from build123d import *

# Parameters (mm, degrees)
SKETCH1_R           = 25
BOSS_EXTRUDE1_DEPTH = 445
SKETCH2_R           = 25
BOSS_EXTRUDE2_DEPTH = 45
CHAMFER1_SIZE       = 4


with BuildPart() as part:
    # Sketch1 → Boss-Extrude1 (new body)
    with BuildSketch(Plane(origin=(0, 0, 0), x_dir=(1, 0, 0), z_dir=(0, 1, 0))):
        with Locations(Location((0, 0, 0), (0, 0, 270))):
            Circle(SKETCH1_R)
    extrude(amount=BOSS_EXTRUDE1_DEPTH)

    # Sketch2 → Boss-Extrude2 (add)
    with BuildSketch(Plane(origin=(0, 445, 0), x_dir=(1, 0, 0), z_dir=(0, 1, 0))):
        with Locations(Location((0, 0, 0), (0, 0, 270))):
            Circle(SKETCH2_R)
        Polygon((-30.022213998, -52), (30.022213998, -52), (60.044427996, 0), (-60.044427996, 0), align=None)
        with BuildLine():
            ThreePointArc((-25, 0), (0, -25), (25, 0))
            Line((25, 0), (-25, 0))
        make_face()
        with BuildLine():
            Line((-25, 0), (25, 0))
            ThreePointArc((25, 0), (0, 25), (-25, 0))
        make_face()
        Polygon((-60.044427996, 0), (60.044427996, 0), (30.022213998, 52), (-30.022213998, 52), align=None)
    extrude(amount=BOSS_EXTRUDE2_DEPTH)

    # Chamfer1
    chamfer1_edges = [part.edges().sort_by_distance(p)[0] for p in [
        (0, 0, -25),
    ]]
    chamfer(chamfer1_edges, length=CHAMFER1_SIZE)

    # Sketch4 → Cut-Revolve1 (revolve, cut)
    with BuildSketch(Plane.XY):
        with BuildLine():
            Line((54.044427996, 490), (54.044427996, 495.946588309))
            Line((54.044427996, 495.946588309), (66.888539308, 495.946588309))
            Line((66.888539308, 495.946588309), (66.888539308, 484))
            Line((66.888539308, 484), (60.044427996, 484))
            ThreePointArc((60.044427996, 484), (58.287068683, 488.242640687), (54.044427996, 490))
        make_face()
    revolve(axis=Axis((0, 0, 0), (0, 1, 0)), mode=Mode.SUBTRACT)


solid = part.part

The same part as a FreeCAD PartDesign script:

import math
import FreeCAD as App
import Part
import Sketcher
Q = App.Units.Quantity


def edges_at(feature, points):
    """Names of the edges that pass closest to the given points."""
    edges = feature.Shape.Edges
    near = lambda p: min(range(len(edges)), key=lambda i: edges[i].distToShape(Part.Vertex(*p))[0])
    return sorted({f"Edge{near(p) + 1}" for p in points})


def add_polygon(sketch, points):
    """Adds a closed chain of lines whose ends are joined by coincident constraints."""
    first, n = sketch.GeometryCount, len(points)
    for a, b in zip(points, points[1:] + points[:1]):
        sketch.addGeometry(Part.LineSegment(App.Vector(*a, 0), App.Vector(*b, 0)), False)
    for i in range(n):
        sketch.addConstraint(Sketcher.Constraint("Coincident", first + i, 2, first + (i + 1) % n, 1))

doc = App.newDocument("Part")
params = doc.addObject("Spreadsheet::Sheet", "Params")
for row, (alias, value) in enumerate([
    ("sketch1_diameter", "50 mm"),
    ("pad1_length", "445 mm"),
    ("pad2_length", "45 mm"),
    ("chamfer_size", "4 mm"),
    ("sketch3_radius", "6 mm"),
    ("groove_angle", "360 deg"),
], start=1):
    params.set(f"A{row}", alias)
    params.set(f"B{row}", "=" + value)
    params.setAlias(f"B{row}", alias)

body = doc.addObject("PartDesign::Body", "Body")

# Sketch on XZ plane
sketch1 = doc.addObject("Sketcher::SketchObject", "Sketch")
body.addObject(sketch1)
sketch1.AttachmentSupport = (doc.XZ_Plane, [""])
sketch1.MapMode = "FlatFace"
sketch1.addGeometry(Part.Circle(App.Vector(0, 0, 0), App.Vector(0, 0, 1), 25), False)
sketch1.addConstraint([
    Sketcher.Constraint("Coincident", 0, 3, -1, 1),
    Sketcher.Constraint("Diameter", 0, Q("50 mm")),
])
sketch1.setExpression("Constraints[1]", "Params.sketch1_diameter")
pad1 = doc.addObject("PartDesign::Pad", "Pad")
body.addObject(pad1)
pad1.Profile = sketch1
pad1.setExpression("Length", "Params.pad1_length")
pad1.Reversed = True

# Sketch on XZ plane
sketch2 = doc.addObject("Sketcher::SketchObject", "Sketch001")
body.addObject(sketch2)
sketch2.AttachmentSupport = (doc.XZ_Plane, [""])
sketch2.MapMode = "FlatFace"
sketch2.AttachmentOffset = App.Placement(App.Vector(0, 0, -445), App.Rotation())
add_polygon(sketch2, [(-30, 52), (30, 52), (60, 0), (30, -52), (-30, -52), (-60, 0)])  # lines 0-5
sketch2.addConstraint([
    Sketcher.Constraint("Horizontal", 0),
    Sketcher.Constraint("Horizontal", 3),
    Sketcher.Constraint("Symmetric", 0, 2, 3, 2, -1, 1),
    Sketcher.Constraint("Symmetric", 1, 2, 4, 2, -1, 1),
    Sketcher.Constraint("PointOnObject", 1, 2, -1),
    Sketcher.Constraint("Parallel", 2, 5),
    Sketcher.Constraint("Vertical", 0, 2, 2, 2),
    Sketcher.Constraint("Angle", 1, Q("-60 deg")),
    Sketcher.Constraint("DistanceY", -1, 1, 0, 2, Q("52 mm")),
    Sketcher.Constraint("DistanceX", 0, 1, 0, 2, Q("60.044428 mm")),
])
pad2 = doc.addObject("PartDesign::Pad", "Pad001")
body.addObject(pad2)
pad2.Profile = sketch2
pad2.setExpression("Length", "Params.pad2_length")
pad2.Reversed = True
doc.recompute()

chamfer = doc.addObject("PartDesign::Chamfer", "Chamfer")
body.addObject(chamfer)
chamfer.Base = (pad2, edges_at(pad2, [(0, 0, -25)]))
chamfer.setExpression("Size", "Params.chamfer_size")

# Sketch on XY plane
sketch3 = doc.addObject("Sketcher::SketchObject", "Sketch002")
body.addObject(sketch3)
sketch3.AttachmentSupport = (doc.XY_Plane, [""])
sketch3.MapMode = "FlatFace"
sketch3.addGeometry([
    Part.LineSegment(App.Vector(54, 496, 0), App.Vector(54, 490, 0)),  # 0
    Part.ArcOfCircle(Part.Circle(App.Vector(54, 484, 0), App.Vector(0, 0, 1), 6), math.radians(0), math.radians(90)),  # 1
    Part.LineSegment(App.Vector(60, 484, 0), App.Vector(67, 484, 0)),  # 2
    Part.LineSegment(App.Vector(67, 484, 0), App.Vector(67, 496, 0)),  # 3
    Part.LineSegment(App.Vector(67, 496, 0), App.Vector(54, 496, 0)),  # 4
], False)
sketch3.addConstraint([
    Sketcher.Constraint("Coincident", 0, 2, 1, 2),
    Sketcher.Constraint("Coincident", 1, 1, 2, 1),
    Sketcher.Constraint("Coincident", 2, 2, 3, 1),
    Sketcher.Constraint("Coincident", 3, 2, 4, 1),
    Sketcher.Constraint("Coincident", 4, 2, 0, 1),
    Sketcher.Constraint("Vertical", 0),
    Sketcher.Constraint("Horizontal", 2),
    Sketcher.Constraint("Vertical", 3),
    Sketcher.Constraint("Horizontal", 4),
    Sketcher.Constraint("Vertical", 1, 3, 0, 2),
    Sketcher.Constraint("Radius", 1, Q("6 mm")),
    Sketcher.Constraint("DistanceY", -1, 1, 1, 3, Q("484 mm")),
    Sketcher.Constraint("DistanceY", -1, 1, 1, 1, Q("484 mm")),
    Sketcher.Constraint("DistanceX", 2, 1, 2, 2, Q("6.844111 mm")),
    Sketcher.Constraint("DistanceY", 0, 2, 0, 1, Q("5.946588 mm")),
    Sketcher.Constraint("DistanceX", -1, 1, 2, 2, Q("66.888539 mm")),
])
sketch3.setExpression("Constraints[10]", "Params.sketch3_radius")
groove = doc.addObject("PartDesign::Groove", "Groove")
body.addObject(groove)
groove.Profile = sketch3
groove.ReferenceAxis = (sketch3, ["V_Axis"])
groove.setExpression("Angle", "Params.groove_angle")

doc.recompute()
